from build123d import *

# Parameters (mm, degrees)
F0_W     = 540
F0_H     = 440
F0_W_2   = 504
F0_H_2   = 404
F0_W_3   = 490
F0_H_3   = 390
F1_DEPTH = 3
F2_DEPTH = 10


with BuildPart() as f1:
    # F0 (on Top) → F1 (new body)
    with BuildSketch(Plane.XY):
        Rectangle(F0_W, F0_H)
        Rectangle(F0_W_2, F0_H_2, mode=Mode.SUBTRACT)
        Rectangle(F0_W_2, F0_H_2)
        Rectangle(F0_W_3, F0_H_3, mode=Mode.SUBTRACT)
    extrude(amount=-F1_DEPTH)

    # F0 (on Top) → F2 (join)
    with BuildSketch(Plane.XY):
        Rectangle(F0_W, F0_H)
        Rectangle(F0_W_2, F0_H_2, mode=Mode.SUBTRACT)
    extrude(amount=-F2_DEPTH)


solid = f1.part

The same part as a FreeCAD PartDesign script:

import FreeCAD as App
import Part
import Sketcher


def add_polygon(sketch, points):
    """Adds a closed chain of lines whose ends are joined by coincident constraints."""
    first, n = sketch.GeometryCount, len(points)
    for a, b in zip(points, points[1:] + points[:1]):
        sketch.addGeometry(Part.LineSegment(App.Vector(*a, 0), App.Vector(*b, 0)), False)
    for i in range(n):
        sketch.addConstraint(Sketcher.Constraint("Coincident", first + i, 2, first + (i + 1) % n, 1))

doc = App.newDocument("Part")
body = doc.addObject("PartDesign::Body", "Body")

# Sketch on XY plane
sketch1 = doc.addObject("Sketcher::SketchObject", "Sketch")
body.addObject(sketch1)
sketch1.AttachmentSupport = (doc.XY_Plane, [""])
sketch1.MapMode = "FlatFace"
add_polygon(sketch1, [(-270, 220), (-270, -220), (270, -220), (270, 220)])  # lines 0-3
add_polygon(sketch1, [(245, -195), (-245, -195), (-245, 195), (245, 195)])  # lines 4-7
sketch1.addConstraint([
    Sketcher.Constraint("Vertical", 0),
    Sketcher.Constraint("Horizontal", 1),
    Sketcher.Constraint("Vertical", 2),
    Sketcher.Constraint("Horizontal", 3),
    Sketcher.Constraint("Horizontal", 4),
    Sketcher.Constraint("Vertical", 5),
    Sketcher.Constraint("Horizontal", 6),
    Sketcher.Constraint("Vertical", 7),
    Sketcher.Constraint("Symmetric", 0, 2, 2, 2, -1, 1),
    Sketcher.Constraint("Symmetric", 4, 2, 6, 2, -1, 1),
    Sketcher.Constraint("DistanceX", 1, 1, 1, 2, 540.0),
    Sketcher.Constraint("DistanceX", 4, 2, 4, 1, 490.0),
    Sketcher.Constraint("DistanceY", 0, 2, 0, 1, 440.0),
    Sketcher.Constraint("DistanceY", 5, 1, 5, 2, 390.0),
])
pad1 = doc.addObject("PartDesign::Pad", "Pad")
body.addObject(pad1)
pad1.Profile = sketch1
pad1.Length = 3
pad1.Reversed = True

# Sketch on XY plane
sketch2 = doc.addObject("Sketcher::SketchObject", "Sketch001")
body.addObject(sketch2)
sketch2.AttachmentSupport = (doc.XY_Plane, [""])
sketch2.MapMode = "FlatFace"
add_polygon(sketch2, [(-270, 220), (-270, -220), (270, -220), (270, 220)])  # lines 0-3
add_polygon(sketch2, [(252, -202), (-252, -202), (-252, 202), (252, 202)])  # lines 4-7
sketch2.addConstraint([
    Sketcher.Constraint("Vertical", 0),
    Sketcher.Constraint("Horizontal", 1),
    Sketcher.Constraint("Vertical", 2),
    Sketcher.Constraint("Horizontal", 3),
    Sketcher.Constraint("Horizontal", 4),
    Sketcher.Constraint("Vertical", 5),
    Sketcher.Constraint("Horizontal", 6),
    Sketcher.Constraint("Vertical", 7),
    Sketcher.Constraint("Symmetric", 0, 2, 2, 2, -1, 1),
    Sketcher.Constraint("Symmetric", 4, 2, 6, 2, -1, 1),
    Sketcher.Constraint("DistanceX", 1, 1, 1, 2, 540.0),
    Sketcher.Constraint("DistanceX", 4, 2, 4, 1, 504.0),
    Sketcher.Constraint("DistanceY", 0, 2, 0, 1, 440.0),
    Sketcher.Constraint("DistanceY", 5, 1, 5, 2, 404.0),
])
pad2 = doc.addObject("PartDesign::Pad", "Pad001")
body.addObject(pad2)
pad2.Profile = sketch2
pad2.Length = 10
pad2.Reversed = True

doc.recompute()
